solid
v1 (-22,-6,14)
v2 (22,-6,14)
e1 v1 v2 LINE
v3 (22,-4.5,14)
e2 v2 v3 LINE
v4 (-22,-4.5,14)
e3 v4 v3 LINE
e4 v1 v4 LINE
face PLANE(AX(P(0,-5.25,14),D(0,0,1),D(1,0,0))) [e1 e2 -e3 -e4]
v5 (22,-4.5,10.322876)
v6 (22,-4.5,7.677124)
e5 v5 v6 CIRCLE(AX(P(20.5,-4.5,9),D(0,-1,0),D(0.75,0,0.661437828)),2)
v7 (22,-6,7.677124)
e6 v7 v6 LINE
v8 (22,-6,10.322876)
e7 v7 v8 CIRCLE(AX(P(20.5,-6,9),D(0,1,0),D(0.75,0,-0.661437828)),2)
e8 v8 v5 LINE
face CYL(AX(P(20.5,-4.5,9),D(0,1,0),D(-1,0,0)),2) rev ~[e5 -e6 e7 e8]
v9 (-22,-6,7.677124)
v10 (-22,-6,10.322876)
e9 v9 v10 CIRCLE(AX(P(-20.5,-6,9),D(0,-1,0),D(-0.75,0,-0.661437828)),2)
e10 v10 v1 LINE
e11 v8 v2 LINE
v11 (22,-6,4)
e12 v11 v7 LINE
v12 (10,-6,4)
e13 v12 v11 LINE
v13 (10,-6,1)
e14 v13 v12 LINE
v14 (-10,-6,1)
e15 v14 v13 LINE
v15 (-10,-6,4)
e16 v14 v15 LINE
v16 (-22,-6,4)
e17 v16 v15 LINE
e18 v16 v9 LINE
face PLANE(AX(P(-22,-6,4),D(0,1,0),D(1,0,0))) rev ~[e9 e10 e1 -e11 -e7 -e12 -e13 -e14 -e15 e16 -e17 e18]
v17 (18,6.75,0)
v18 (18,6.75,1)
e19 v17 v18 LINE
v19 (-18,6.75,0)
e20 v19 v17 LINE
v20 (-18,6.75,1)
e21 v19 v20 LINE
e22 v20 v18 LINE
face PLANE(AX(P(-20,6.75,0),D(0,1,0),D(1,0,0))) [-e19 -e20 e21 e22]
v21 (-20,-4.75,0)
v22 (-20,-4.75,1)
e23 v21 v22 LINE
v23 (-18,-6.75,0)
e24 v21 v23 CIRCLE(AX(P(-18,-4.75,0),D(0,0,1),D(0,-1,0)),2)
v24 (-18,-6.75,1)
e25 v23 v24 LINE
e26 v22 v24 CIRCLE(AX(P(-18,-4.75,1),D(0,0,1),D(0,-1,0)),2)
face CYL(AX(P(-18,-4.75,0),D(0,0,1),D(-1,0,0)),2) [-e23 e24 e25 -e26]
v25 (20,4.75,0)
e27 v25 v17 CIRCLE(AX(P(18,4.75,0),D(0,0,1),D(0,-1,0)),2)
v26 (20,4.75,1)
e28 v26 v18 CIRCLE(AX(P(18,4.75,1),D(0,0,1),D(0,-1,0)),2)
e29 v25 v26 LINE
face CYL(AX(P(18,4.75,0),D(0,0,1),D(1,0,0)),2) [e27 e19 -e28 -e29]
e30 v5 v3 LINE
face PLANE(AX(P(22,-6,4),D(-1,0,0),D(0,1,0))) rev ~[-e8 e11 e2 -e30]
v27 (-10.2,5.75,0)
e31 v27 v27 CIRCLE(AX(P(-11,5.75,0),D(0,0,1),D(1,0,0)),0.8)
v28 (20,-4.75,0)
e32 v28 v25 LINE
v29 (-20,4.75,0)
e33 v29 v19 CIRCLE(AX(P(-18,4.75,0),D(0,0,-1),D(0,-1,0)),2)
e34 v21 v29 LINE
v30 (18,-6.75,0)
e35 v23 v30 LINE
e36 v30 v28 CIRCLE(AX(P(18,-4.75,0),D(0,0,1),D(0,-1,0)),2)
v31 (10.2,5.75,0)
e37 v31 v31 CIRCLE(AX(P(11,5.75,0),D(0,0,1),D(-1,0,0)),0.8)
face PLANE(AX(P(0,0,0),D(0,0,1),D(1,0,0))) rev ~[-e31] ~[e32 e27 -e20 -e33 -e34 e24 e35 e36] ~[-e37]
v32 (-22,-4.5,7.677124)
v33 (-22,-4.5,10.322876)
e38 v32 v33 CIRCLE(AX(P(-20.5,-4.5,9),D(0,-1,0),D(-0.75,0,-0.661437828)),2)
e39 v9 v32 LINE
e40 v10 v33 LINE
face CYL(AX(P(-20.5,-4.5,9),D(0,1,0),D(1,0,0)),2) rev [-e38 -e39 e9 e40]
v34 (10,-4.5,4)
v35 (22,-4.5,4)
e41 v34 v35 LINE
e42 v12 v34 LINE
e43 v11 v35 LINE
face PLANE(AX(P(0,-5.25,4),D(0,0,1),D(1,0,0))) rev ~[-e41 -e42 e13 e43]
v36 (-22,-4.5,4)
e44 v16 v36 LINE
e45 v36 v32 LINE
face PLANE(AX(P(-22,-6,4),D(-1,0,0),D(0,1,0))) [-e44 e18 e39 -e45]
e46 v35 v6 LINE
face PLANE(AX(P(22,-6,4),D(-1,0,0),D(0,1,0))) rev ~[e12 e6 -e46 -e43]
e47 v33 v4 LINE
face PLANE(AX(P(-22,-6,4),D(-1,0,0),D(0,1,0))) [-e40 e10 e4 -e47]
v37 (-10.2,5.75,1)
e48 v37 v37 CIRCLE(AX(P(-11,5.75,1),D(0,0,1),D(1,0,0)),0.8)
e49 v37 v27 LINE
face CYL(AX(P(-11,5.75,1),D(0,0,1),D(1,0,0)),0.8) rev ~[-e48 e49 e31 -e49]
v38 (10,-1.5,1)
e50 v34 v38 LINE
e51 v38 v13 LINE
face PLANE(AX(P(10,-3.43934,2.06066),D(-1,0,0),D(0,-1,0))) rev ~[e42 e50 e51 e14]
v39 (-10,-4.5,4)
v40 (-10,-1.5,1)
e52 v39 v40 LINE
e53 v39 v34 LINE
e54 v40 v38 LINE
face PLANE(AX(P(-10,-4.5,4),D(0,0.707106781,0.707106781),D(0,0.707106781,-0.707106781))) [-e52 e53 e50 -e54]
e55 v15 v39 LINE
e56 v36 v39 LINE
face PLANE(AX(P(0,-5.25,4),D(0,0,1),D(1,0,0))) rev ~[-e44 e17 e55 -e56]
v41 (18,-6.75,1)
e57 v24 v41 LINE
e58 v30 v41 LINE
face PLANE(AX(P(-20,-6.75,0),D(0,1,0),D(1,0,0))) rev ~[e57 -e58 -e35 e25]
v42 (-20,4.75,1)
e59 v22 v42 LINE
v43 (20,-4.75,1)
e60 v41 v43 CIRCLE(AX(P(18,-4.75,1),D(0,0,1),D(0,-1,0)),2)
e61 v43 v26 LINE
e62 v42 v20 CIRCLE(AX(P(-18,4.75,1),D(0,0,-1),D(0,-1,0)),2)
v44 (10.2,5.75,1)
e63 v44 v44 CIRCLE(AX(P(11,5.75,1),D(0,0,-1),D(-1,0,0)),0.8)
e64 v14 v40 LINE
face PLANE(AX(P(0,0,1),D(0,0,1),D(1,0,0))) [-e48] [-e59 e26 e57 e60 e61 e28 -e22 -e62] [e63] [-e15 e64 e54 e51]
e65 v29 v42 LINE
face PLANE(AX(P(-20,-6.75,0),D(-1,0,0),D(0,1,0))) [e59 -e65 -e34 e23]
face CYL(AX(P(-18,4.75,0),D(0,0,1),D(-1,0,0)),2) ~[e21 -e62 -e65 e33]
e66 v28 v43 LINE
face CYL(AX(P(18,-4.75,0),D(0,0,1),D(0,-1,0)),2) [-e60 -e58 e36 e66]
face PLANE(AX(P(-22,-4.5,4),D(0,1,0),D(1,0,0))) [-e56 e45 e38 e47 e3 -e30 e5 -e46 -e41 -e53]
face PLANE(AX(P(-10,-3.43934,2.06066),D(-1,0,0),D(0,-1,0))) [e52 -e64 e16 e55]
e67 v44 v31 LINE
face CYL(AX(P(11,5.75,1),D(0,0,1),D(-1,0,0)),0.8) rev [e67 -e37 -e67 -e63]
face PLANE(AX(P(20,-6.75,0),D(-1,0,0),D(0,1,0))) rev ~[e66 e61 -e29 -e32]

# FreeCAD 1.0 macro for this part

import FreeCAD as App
import Part
import Sketcher

V = App.Vector


def edges_at(feature, points):
    """Names of the edges that pass closest to the given points."""
    edges = feature.Shape.Edges
    near = lambda p: min(range(len(edges)), key=lambda i: edges[i].distToShape(Part.Vertex(*p))[0])
    return sorted({f"Edge{near(p) + 1}" for p in points})

doc = App.newDocument("Part")
body = doc.addObject("PartDesign::Body", "Body")

sketch1 = body.newObject("Sketcher::SketchObject", "Sketch")
sketch1.AttachmentSupport = (doc.getObject("XY_Plane"), [""])
sketch1.MapMode = "FlatFace"
sketch1.addGeometry([
    Part.LineSegment(V(-20, 6.75, 0), V(-20, -6.75, 0)),
    Part.LineSegment(V(-20, -6.75, 0), V(20, -6.75, 0)),
    Part.LineSegment(V(20, -6.75, 0), V(20, 6.75, 0)),
    Part.LineSegment(V(20, 6.75, 0), V(-20, 6.75, 0)),
], False)
sketch1.addConstraint([
    Sketcher.Constraint("Coincident", 0, 2, 1, 1),
    Sketcher.Constraint("Coincident", 1, 2, 2, 1),
    Sketcher.Constraint("Coincident", 2, 2, 3, 1),
    Sketcher.Constraint("Coincident", 3, 2, 0, 1),
    Sketcher.Constraint("Vertical", 0),
    Sketcher.Constraint("Horizontal", 1),
    Sketcher.Constraint("Vertical", 2),
    Sketcher.Constraint("Horizontal", 3),
    Sketcher.Constraint("Symmetric", 0, 2, 2, 2, -1, 1),
    Sketcher.Constraint("DistanceX", 1, 1, 1, 2, 40.0),
    Sketcher.Constraint("DistanceY", 0, 2, 0, 1, 13.5),
])
pad1 = body.newObject("PartDesign::Pad", "Pad")
pad1.Profile = sketch1
pad1.Length = 1
doc.recompute()

fillet = body.newObject("PartDesign::Fillet", "Fillet")
fillet.Base = (pad1, edges_at(pad1, [
    (20, 6.75, 0.5),
    (20, -6.75, 0.5),
    (-20, -6.75, 0.5),
    (-20, 6.75, 0.5),
]))
fillet.Radius = 2

sketch2 = body.newObject("Sketcher::SketchObject", "Sketch001")
sketch2.AttachmentSupport = (doc.getObject("XY_Plane"), [""])
sketch2.MapMode = "FlatFace"
sketch2.AttachmentOffset = App.Placement(V(0, 0, 1), App.Rotation())
sketch2.addGeometry(Part.Circle(V(-11, 5.75, 0), V(0, 0, 1), 0.8), False)
sketch2.addConstraint([
    Sketcher.Constraint("Diameter", 0, 1.6),
    Sketcher.Constraint("DistanceX", 0, 3, -1, 1, 11.0),
    Sketcher.Constraint("DistanceY", -1, 1, 0, 3, 5.75),
])
pocket1 = body.newObject("PartDesign::Pocket", "Pocket")
pocket1.Profile = sketch2
pocket1.Type = "ThroughAll"
doc.recompute()

mirrored = body.newObject("PartDesign::Mirrored", "Mirrored")
mirrored.Originals = [pocket1]
mirrored.MirrorPlane = (doc.getObject("YZ_Plane"), [""])
body.Tip = mirrored

sketch3 = body.newObject("Sketcher::SketchObject", "Sketch002")
sketch3.AttachmentSupport = (doc.getObject("XY_Plane"), [""])
sketch3.MapMode = "FlatFace"
sketch3.AttachmentOffset = App.Placement(V(0, 0, 1), App.Rotation())
sketch3.addGeometry([
    Part.LineSegment(V(-10, -4.5, 0), V(-10, -6, 0)),
    Part.LineSegment(V(-10, -6, 0), V(10, -6, 0)),
    Part.LineSegment(V(10, -6, 0), V(10, -4.5, 0)),
    Part.LineSegment(V(10, -4.5, 0), V(-10, -4.5, 0)),
], False)
sketch3.addConstraint([
    Sketcher.Constraint("Coincident", 0, 2, 1, 1),
    Sketcher.Constraint("Coincident", 1, 2, 2, 1),
    Sketcher.Constraint("Coincident", 2, 2, 3, 1),
    Sketcher.Constraint("Coincident", 3, 2, 0, 1),
    Sketcher.Constraint("Vertical", 0),
    Sketcher.Constraint("Horizontal", 1),
    Sketcher.Constraint("Vertical", 2),
    Sketcher.Constraint("Horizontal", 3),
    Sketcher.Constraint("DistanceX", 1, 1, 1, 2, 20.0),
    Sketcher.Constraint("DistanceY", 0, 2, 0, 1, 1.5),
    Sketcher.Constraint("DistanceX", 0, 2, -1, 1, 10.0),
    Sketcher.Constraint("DistanceY", 0, 2, -1, 1, 6.0),
])
pad2 = body.newObject("PartDesign::Pad", "Pad001")
pad2.Profile = sketch3
pad2.Length = 3

sketch4 = body.newObject("Sketcher::SketchObject", "Sketch003")
sketch4.AttachmentSupport = (doc.getObject("XY_Plane"), [""])
sketch4.MapMode = "FlatFace"
sketch4.AttachmentOffset = App.Placement(V(0, 0, 4), App.Rotation())
sketch4.addGeometry([
    Part.LineSegment(V(-22, -4.5, 0), V(-22, -6, 0)),
    Part.LineSegment(V(-22, -6, 0), V(22, -6, 0)),
    Part.LineSegment(V(22, -6, 0), V(22, -4.5, 0)),
    Part.LineSegment(V(22, -4.5, 0), V(-22, -4.5, 0)),
], False)
sketch4.addConstraint([
    Sketcher.Constraint("Coincident", 0, 2, 1, 1),
    Sketcher.Constraint("Coincident", 1, 2, 2, 1),
    Sketcher.Constraint("Coincident", 2, 2, 3, 1),
    Sketcher.Constraint("Coincident", 3, 2, 0, 1),
    Sketcher.Constraint("Vertical", 0),
    Sketcher.Constraint("Horizontal", 1),
    Sketcher.Constraint("Vertical", 2),
    Sketcher.Constraint("Horizontal", 3),
    Sketcher.Constraint("DistanceX", 1, 1, 1, 2, 44.0),
    Sketcher.Constraint("DistanceY", 0, 2, 0, 1, 1.5),
    Sketcher.Constraint("DistanceX", 0, 2, -1, 1, 22.0),
    Sketcher.Constraint("DistanceY", 0, 2, -1, 1, 6.0),
])
pad3 = body.newObject("PartDesign::Pad", "Pad002")
pad3.Profile = sketch4
pad3.Length = 10

sketch5 = body.newObject("Sketcher::SketchObject", "Sketch004")
sketch5.AttachmentSupport = (doc.getObject("XZ_Plane"), [""])
sketch5.MapMode = "FlatFace"
sketch5.AttachmentOffset = App.Placement(V(0, 0, 4.5), App.Rotation())
sketch5.addGeometry(Part.Circle(V(20.5, 9, 0), V(0, 0, 1), 2), False)
sketch5.addConstraint([
    Sketcher.Constraint("Diameter", 0, 4.0),
    Sketcher.Constraint("DistanceY", -1, 1, 0, 3, 9.0),
    Sketcher.Constraint("DistanceX", -1, 1, 0, 3, 20.5),
])
pocket2 = body.newObject("PartDesign::Pocket", "Pocket001")
pocket2.Profile = sketch5
pocket2.Type = "ThroughAll"
pocket2.Reversed = True
doc.recompute()

mirrored2 = body.newObject("PartDesign::Mirrored", "Mirrored001")
mirrored2.Originals = [pocket2]
mirrored2.MirrorPlane = (doc.getObject("YZ_Plane"), [""])
body.Tip = mirrored2

sketch6 = body.newObject("Sketcher::SketchObject", "Sketch005")
sketch6.AttachmentSupport = (doc.getObject("YZ_Plane"), [""])
sketch6.MapMode = "FlatFace"
sketch6.AttachmentOffset = App.Placement(V(0, 0, -10), App.Rotation())
sketch6.addGeometry([
    Part.LineSegment(V(-4.5, 4, 0), V(-1.5, 1, 0)),
    Part.LineSegment(V(-1.5, 1, 0), V(-4.5, 1, 0)),
    Part.LineSegment(V(-4.5, 1, 0), V(-4.5, 4, 0)),
], False)
sketch6.addConstraint([
    Sketcher.Constraint("Coincident", 0, 2, 1, 1),
    Sketcher.Constraint("Coincident", 1, 2, 2, 1),
    Sketcher.Constraint("Coincident", 2, 2, 0, 1),
    Sketcher.Constraint("Horizontal", 1),
    Sketcher.Constraint("Vertical", 2),
    Sketcher.Constraint("Equal", 1, 2),
    Sketcher.Constraint("DistanceX", 1, 2, 1, 1, 3.0),
    Sketcher.Constraint("DistanceY", -1, 1, 0, 2, 1.0),
    Sketcher.Constraint("DistanceX", 0, 2, -1, 1, 1.5),
])
pad4 = body.newObject("PartDesign::Pad", "Pad003")
pad4.Profile = sketch6
pad4.Length = 20

doc.recompute()
